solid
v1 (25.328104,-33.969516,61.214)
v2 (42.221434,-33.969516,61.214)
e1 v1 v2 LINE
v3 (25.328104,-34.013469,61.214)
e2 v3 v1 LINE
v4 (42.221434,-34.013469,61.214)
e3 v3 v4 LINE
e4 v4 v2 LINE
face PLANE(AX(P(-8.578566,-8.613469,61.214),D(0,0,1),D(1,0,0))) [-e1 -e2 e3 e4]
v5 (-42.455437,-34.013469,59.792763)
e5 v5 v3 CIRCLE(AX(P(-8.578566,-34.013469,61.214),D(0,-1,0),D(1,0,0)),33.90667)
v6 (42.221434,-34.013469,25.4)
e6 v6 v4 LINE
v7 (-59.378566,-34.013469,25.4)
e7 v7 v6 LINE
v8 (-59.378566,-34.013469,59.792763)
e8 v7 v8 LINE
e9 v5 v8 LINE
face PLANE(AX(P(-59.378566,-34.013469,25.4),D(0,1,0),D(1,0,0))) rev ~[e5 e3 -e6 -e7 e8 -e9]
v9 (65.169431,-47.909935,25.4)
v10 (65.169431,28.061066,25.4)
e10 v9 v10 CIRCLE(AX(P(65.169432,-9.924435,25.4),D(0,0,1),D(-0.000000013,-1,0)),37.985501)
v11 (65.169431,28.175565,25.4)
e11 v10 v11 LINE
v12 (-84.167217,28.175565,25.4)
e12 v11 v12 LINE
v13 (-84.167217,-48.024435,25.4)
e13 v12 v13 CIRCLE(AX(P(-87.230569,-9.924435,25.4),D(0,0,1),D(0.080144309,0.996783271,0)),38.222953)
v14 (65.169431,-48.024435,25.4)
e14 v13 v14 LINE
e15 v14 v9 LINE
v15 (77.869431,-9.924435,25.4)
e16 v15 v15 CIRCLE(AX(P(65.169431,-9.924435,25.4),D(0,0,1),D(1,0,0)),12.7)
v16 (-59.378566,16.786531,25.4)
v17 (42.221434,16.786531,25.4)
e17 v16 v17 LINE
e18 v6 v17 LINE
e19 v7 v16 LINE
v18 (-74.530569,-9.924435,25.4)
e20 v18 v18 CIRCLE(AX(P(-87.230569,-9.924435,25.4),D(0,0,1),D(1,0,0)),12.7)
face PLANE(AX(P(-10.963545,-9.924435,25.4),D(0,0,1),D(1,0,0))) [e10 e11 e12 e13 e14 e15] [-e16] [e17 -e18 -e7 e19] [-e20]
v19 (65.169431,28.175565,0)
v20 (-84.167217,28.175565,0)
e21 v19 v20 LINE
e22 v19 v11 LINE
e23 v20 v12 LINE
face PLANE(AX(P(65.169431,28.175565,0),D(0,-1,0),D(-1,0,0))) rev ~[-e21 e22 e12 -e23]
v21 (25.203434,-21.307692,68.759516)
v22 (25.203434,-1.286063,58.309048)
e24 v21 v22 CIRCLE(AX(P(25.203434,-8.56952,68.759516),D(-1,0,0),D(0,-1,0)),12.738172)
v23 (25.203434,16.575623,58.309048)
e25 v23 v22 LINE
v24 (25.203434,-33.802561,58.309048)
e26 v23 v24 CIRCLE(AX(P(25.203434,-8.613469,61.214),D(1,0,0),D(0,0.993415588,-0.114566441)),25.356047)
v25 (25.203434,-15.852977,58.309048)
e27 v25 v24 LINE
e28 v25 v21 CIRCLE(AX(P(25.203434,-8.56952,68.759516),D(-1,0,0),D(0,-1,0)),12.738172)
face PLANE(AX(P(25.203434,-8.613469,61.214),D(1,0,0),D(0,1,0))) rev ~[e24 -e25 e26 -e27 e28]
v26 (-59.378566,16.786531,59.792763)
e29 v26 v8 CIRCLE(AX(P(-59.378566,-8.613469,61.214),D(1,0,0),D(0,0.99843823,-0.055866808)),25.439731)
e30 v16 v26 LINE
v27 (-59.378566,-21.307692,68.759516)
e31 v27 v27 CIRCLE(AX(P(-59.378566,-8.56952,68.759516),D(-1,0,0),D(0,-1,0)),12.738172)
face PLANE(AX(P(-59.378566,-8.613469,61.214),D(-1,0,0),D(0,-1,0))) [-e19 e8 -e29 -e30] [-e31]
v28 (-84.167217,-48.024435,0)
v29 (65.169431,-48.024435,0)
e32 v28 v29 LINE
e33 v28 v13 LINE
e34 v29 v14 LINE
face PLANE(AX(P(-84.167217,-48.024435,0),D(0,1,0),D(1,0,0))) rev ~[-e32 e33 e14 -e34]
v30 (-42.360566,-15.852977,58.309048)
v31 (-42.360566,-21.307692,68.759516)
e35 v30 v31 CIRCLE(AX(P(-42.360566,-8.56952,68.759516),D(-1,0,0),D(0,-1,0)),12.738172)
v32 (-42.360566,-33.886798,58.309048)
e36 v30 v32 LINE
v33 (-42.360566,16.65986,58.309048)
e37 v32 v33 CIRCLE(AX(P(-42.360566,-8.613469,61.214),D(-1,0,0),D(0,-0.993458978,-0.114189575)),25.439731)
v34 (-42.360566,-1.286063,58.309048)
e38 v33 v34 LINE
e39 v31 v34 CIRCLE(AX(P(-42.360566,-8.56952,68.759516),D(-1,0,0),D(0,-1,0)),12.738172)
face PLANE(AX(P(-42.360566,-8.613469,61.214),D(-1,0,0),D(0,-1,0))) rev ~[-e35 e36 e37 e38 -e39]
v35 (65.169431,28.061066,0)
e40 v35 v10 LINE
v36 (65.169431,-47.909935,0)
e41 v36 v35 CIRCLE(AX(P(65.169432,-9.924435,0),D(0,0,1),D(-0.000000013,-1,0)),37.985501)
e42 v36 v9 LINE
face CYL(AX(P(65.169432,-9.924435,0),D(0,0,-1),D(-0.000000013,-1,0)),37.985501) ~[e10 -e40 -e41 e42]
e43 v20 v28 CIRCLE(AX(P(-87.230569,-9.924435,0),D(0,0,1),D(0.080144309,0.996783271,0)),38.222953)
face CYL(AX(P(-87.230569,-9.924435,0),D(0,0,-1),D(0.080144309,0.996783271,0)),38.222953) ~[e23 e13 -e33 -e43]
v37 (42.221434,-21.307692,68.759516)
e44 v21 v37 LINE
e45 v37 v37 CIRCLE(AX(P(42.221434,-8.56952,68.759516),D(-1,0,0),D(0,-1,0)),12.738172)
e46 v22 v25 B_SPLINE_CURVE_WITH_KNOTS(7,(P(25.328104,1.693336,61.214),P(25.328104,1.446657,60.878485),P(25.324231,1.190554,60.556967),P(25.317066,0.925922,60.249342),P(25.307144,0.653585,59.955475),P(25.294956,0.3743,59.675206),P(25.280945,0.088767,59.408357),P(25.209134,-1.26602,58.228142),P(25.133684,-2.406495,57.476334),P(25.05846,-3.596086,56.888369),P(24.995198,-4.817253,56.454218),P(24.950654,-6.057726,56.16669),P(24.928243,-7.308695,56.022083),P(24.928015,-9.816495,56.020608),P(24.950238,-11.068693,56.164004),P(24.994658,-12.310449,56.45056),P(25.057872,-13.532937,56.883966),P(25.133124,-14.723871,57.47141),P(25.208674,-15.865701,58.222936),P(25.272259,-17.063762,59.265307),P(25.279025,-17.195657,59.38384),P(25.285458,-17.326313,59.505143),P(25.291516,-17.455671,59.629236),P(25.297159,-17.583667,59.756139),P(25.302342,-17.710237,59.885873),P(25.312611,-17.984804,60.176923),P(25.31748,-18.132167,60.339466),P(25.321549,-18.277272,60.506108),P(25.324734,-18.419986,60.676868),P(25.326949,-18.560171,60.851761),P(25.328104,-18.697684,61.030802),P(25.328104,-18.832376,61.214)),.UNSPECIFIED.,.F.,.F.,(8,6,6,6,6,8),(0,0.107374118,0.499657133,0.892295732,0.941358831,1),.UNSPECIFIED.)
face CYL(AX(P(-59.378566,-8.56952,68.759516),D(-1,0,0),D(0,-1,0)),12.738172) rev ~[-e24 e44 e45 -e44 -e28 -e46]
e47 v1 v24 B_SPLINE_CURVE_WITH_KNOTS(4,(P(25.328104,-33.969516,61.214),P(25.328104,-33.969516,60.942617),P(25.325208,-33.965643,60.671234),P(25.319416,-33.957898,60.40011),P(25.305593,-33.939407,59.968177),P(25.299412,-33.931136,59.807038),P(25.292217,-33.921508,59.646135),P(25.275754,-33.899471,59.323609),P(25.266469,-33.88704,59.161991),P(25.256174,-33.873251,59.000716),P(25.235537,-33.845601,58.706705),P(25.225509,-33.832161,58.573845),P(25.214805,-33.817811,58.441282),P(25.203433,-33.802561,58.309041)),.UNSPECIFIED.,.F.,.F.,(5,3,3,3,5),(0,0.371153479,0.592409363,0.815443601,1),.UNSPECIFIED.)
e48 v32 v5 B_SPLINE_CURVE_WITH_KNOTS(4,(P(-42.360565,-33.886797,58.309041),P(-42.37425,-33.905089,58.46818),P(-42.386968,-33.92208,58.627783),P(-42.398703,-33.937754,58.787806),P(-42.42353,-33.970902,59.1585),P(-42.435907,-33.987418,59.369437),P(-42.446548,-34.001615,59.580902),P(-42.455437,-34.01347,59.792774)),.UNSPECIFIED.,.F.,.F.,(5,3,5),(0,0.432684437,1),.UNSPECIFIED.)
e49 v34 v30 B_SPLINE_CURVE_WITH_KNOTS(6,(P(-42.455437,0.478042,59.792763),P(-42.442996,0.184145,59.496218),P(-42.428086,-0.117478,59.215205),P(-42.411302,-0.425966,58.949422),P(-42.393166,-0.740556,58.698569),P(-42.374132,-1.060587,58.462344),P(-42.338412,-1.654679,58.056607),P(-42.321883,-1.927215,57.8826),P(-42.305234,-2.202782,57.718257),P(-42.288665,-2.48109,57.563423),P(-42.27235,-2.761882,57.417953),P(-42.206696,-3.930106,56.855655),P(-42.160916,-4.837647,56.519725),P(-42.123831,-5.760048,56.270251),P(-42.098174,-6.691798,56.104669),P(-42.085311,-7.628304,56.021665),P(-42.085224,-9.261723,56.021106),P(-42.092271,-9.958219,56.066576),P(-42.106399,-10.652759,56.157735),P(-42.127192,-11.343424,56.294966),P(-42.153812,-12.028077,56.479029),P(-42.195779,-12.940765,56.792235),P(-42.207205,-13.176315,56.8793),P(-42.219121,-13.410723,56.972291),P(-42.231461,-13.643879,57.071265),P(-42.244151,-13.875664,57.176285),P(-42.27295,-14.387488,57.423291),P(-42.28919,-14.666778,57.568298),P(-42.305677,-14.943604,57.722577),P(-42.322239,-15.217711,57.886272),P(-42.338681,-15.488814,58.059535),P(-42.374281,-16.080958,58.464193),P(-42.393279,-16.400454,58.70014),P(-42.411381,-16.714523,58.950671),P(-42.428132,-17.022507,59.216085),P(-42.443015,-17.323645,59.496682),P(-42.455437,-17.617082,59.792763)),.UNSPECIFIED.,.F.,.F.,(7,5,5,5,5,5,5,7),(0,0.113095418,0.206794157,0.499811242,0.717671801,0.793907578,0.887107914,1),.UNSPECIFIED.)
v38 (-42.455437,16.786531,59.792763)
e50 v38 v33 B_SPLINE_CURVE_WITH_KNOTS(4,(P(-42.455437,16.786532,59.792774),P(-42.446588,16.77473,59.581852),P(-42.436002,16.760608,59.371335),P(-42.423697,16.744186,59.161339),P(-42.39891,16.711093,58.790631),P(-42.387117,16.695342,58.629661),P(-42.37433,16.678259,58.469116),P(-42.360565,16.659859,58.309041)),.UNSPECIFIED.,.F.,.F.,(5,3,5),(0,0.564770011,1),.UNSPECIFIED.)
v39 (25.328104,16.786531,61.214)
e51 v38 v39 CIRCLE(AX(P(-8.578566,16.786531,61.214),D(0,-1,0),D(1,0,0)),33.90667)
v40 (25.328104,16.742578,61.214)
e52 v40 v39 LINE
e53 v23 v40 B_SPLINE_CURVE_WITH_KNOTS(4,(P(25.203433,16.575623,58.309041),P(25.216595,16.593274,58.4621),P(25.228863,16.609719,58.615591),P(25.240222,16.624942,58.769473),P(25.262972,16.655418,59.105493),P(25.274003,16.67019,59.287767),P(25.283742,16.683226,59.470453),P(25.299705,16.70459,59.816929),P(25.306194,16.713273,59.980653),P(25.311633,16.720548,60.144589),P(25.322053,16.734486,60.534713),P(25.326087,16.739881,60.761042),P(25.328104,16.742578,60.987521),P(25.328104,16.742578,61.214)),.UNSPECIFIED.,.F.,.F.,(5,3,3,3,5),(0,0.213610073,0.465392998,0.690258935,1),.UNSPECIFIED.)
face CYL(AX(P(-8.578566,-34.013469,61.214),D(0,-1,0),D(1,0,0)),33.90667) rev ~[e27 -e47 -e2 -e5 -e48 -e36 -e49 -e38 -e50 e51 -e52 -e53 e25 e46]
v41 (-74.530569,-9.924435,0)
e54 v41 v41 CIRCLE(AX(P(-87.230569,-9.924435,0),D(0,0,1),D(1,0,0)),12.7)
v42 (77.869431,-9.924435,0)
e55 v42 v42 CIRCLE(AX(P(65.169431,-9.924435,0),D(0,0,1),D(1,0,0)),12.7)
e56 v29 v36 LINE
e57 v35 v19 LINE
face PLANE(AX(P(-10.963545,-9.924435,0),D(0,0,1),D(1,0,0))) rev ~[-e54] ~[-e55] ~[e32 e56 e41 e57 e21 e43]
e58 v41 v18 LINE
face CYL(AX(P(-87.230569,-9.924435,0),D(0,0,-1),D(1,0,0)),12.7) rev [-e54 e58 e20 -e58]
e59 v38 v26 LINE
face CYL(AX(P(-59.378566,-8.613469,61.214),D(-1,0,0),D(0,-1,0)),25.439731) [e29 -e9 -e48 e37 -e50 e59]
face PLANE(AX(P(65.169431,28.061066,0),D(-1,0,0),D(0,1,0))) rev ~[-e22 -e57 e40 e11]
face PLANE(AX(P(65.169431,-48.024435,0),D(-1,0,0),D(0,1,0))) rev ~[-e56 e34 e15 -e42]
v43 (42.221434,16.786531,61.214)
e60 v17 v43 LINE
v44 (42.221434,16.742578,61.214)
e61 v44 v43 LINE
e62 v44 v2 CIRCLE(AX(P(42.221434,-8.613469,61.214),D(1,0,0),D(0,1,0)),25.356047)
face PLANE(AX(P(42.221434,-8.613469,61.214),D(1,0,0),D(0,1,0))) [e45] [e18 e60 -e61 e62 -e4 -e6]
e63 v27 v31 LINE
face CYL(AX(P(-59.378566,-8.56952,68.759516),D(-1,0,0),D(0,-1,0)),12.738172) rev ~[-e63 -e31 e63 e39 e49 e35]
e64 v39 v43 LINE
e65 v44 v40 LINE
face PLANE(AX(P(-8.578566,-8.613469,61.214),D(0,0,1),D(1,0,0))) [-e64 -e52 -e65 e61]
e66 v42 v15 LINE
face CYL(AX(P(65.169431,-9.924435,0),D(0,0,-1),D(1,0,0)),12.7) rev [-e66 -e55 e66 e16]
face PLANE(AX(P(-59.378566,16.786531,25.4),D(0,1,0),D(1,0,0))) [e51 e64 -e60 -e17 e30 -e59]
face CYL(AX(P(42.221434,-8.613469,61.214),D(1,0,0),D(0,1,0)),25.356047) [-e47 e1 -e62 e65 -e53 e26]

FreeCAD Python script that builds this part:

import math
import FreeCAD as App
import Part
import Sketcher
from FreeCAD import Vector
Q = App.Units.Quantity

doc = App.newDocument("Part")
body = doc.addObject("PartDesign::Body", "Body")

sketch1 = doc.addObject("Sketcher::SketchObject", "Sketch")
body.addObject(sketch1)
sketch1.AttachmentSupport = (doc.XY_Plane, [""])
sketch1.MapMode = "FlatFace"
sketch1.addGeometry([
    Part.LineSegment(Vector(65.169431, 28.175565, 0), Vector(-84.167217, 28.175565, 0)),
    Part.ArcOfCircle(Part.Circle(Vector(-87.230569, -9.924435, 0), Vector(0, 0, 1), 38.222953), math.radians(85.403139), math.radians(274.596861)),
    Part.LineSegment(Vector(-84.167217, -48.024435, 0), Vector(65.169431, -48.024435, 0)),
    Part.LineSegment(Vector(65.169431, -48.024435, 0), Vector(65.169431, -47.909935, 0)),
    Part.ArcOfCircle(Part.Circle(Vector(65.169432, -9.924435, 0), Vector(0, 0, 1), 37.985501), math.radians(-90.000001), math.radians(90.000001)),
    Part.LineSegment(Vector(65.169431, 28.061066, 0), Vector(65.169431, 28.175565, 0)),
    Part.Circle(Vector(-87.230569, -9.924435, 0), Vector(0, 0, 1), 12.7),
    Part.Circle(Vector(65.169431, -9.924435, 0), Vector(0, 0, 1), 12.7),
], False)
sketch1.addConstraint([
    Sketcher.Constraint("Coincident", 0, 2, 1, 1),
    Sketcher.Constraint("Coincident", 1, 2, 2, 1),
    Sketcher.Constraint("Coincident", 2, 2, 3, 1),
    Sketcher.Constraint("Coincident", 3, 2, 4, 1),
    Sketcher.Constraint("Coincident", 4, 2, 5, 1),
    Sketcher.Constraint("Coincident", 5, 2, 0, 1),
    Sketcher.Constraint("Horizontal", 0),
    Sketcher.Constraint("Horizontal", 2),
    Sketcher.Constraint("Vertical", 3),
    Sketcher.Constraint("Vertical", 5),
    Sketcher.Constraint("Coincident", 6, 3, 1, 3),
    Sketcher.Constraint("Coincident", 7, 3, 4, 3),
    Sketcher.Constraint("Equal", 6, 7),
    Sketcher.Constraint("Horizontal", 1, 3, 4, 3),
    Sketcher.Constraint("Vertical", 0, 2, 1, 2),
    Sketcher.Constraint("Vertical", 7, 3, 2, 2),
    Sketcher.Constraint("Vertical", 3, 2, 4, 2),
    Sketcher.Constraint("Diameter", 6, Q("1 in")),
    Sketcher.Constraint("DistanceX", 1, 3, 4, 3, Q("6 in")),
    Sketcher.Constraint("DistanceY", 1, 2, 0, 2, Q("3 in")),
    Sketcher.Constraint("Radius", 4, Q("37.985501 mm")),
    Sketcher.Constraint("Radius", 1, Q("38.222953 mm")),
    Sketcher.Constraint("DistanceX", 1, 3, -1, 1, Q("87.230569 mm")),
    Sketcher.Constraint("DistanceY", 1, 3, -1, 1, Q("9.924435 mm")),
])
pad1 = doc.addObject("PartDesign::Pad", "Pad")
body.addObject(pad1)
pad1.Profile = sketch1
pad1.Length = Q("1 in")

sketch2 = doc.addObject("Sketcher::SketchObject", "Sketch001")
body.addObject(sketch2)
sketch2.AttachmentSupport = (doc.XY_Plane, [""])
sketch2.MapMode = "FlatFace"
sketch2.AttachmentOffset = App.Placement(Vector(0, 0, 1 * 25.4), App.Rotation())
sketch2.addGeometry([
    Part.LineSegment(Vector(-59.378566, 16.786531, 0), Vector(-59.378566, -34.013469, 0)),
    Part.LineSegment(Vector(-59.378566, -34.013469, 0), Vector(42.221434, -34.013469, 0)),
    Part.LineSegment(Vector(42.221434, -34.013469, 0), Vector(42.221434, 16.786531, 0)),
    Part.LineSegment(Vector(42.221434, 16.786531, 0), Vector(-59.378566, 16.786531, 0)),
], False)
sketch2.addConstraint([
    Sketcher.Constraint("Coincident", 0, 2, 1, 1),
    Sketcher.Constraint("Coincident", 1, 2, 2, 1),
    Sketcher.Constraint("Coincident", 2, 2, 3, 1),
    Sketcher.Constraint("Coincident", 3, 2, 0, 1),
    Sketcher.Constraint("Vertical", 0),
    Sketcher.Constraint("Horizontal", 1),
    Sketcher.Constraint("Vertical", 2),
    Sketcher.Constraint("Horizontal", 3),
    Sketcher.Constraint("DistanceX", 1, 1, 1, 2, Q("4 in")),
    Sketcher.Constraint("DistanceY", 0, 2, 0, 1, Q("2 in")),
    Sketcher.Constraint("DistanceY", 0, 2, -1, 1, Q("34.013469 mm")),
    Sketcher.Constraint("DistanceX", 0, 2, -1, 1, Q("59.378566 mm")),
])
pad2 = doc.addObject("PartDesign::Pad", "Pad001")
body.addObject(pad2)
pad2.Profile = sketch2
pad2.Length = Q("1.41 in")

sketch3 = doc.addObject("Sketcher::SketchObject", "Sketch002")
body.addObject(sketch3)
sketch3.AttachmentSupport = (doc.XZ_Plane, [""])
sketch3.MapMode = "FlatFace"
sketch3.AttachmentOffset = App.Placement(Vector(0, 0, 34.013469), App.Rotation())
sketch3.addGeometry(Part.Circle(Vector(-8.578566, 61.214, 0), Vector(0, 0, 1), 33.90667), False)
sketch3.addConstraint([
    Sketcher.Constraint("DistanceY", -1, 1, 0, 3, Q("2.41 in")),
    Sketcher.Constraint("Diameter", 0, Q("67.81334 mm")),
    Sketcher.Constraint("DistanceX", 0, 3, -1, 1, Q("8.578566 mm")),
])
pocket1 = doc.addObject("PartDesign::Pocket", "Pocket")
body.addObject(pocket1)
pocket1.Profile = sketch3
pocket1.Length = Q("2.27 in")

sketch4 = doc.addObject("Sketcher::SketchObject", "Sketch003")
body.addObject(sketch4)
sketch4.AttachmentSupport = (doc.YZ_Plane, [""])
sketch4.MapMode = "FlatFace"
sketch4.AttachmentOffset = App.Placement(Vector(0, 0, -59.378566), App.Rotation())
sketch4.addGeometry(Part.Circle(Vector(-8.613469, 61.214, 0), Vector(0, 0, 1), 25.439731), False)
sketch4.addConstraint([
    Sketcher.Constraint("DistanceY", -1, 1, 0, 3, Q("2.41 in")),
    Sketcher.Constraint("Diameter", 0, Q("50.879462 mm")),
    Sketcher.Constraint("DistanceX", 0, 3, -1, 1, Q("8.613469 mm")),
])
pad3 = doc.addObject("PartDesign::Pad", "Pad002")
body.addObject(pad3)
pad3.Profile = sketch4
pad3.Length = Q("0.67 in")

sketch5 = doc.addObject("Sketcher::SketchObject", "Sketch004")
body.addObject(sketch5)
sketch5.AttachmentSupport = (doc.YZ_Plane, [""])
sketch5.MapMode = "FlatFace"
sketch5.AttachmentOffset = App.Placement(Vector(0, 0, 42.221434), App.Rotation())
sketch5.addGeometry(Part.Circle(Vector(-8.613469, 61.214, 0), Vector(0, 0, 1), 25.356047), False)
sketch5.addConstraint([
    Sketcher.Constraint("DistanceY", -1, 1, 0, 3, Q("2.41 in")),
    Sketcher.Constraint("Diameter", 0, Q("50.712094 mm")),
    Sketcher.Constraint("DistanceX", 0, 3, -1, 1, Q("8.613469 mm")),
])
pad4 = doc.addObject("PartDesign::Pad", "Pad003")
body.addObject(pad4)
pad4.Profile = sketch5
pad4.Length = Q("0.67 in")
pad4.Reversed = True

sketch6 = doc.addObject("Sketcher::SketchObject", "Sketch005")
body.addObject(sketch6)
sketch6.AttachmentSupport = (doc.YZ_Plane, [""])
sketch6.MapMode = "FlatFace"
sketch6.AttachmentOffset = App.Placement(Vector(0, 0, -59.378566), App.Rotation())
sketch6.addGeometry(Part.Circle(Vector(-8.56952, 68.759516, 0), Vector(0, 0, 1), 12.738172), False)
sketch6.addConstraint([
    Sketcher.Constraint("Diameter", 0, Q("25.476344 mm")),
    Sketcher.Constraint("DistanceX", 0, 3, -1, 1, Q("8.56952 mm")),
    Sketcher.Constraint("DistanceY", -1, 1, 0, 3, Q("68.759516 mm")),
])
pocket2 = doc.addObject("PartDesign::Pocket", "Pocket001")
body.addObject(pocket2)
pocket2.Profile = sketch6
pocket2.Length = Q("4.79 in")
pocket2.Reversed = True

doc.recompute()
